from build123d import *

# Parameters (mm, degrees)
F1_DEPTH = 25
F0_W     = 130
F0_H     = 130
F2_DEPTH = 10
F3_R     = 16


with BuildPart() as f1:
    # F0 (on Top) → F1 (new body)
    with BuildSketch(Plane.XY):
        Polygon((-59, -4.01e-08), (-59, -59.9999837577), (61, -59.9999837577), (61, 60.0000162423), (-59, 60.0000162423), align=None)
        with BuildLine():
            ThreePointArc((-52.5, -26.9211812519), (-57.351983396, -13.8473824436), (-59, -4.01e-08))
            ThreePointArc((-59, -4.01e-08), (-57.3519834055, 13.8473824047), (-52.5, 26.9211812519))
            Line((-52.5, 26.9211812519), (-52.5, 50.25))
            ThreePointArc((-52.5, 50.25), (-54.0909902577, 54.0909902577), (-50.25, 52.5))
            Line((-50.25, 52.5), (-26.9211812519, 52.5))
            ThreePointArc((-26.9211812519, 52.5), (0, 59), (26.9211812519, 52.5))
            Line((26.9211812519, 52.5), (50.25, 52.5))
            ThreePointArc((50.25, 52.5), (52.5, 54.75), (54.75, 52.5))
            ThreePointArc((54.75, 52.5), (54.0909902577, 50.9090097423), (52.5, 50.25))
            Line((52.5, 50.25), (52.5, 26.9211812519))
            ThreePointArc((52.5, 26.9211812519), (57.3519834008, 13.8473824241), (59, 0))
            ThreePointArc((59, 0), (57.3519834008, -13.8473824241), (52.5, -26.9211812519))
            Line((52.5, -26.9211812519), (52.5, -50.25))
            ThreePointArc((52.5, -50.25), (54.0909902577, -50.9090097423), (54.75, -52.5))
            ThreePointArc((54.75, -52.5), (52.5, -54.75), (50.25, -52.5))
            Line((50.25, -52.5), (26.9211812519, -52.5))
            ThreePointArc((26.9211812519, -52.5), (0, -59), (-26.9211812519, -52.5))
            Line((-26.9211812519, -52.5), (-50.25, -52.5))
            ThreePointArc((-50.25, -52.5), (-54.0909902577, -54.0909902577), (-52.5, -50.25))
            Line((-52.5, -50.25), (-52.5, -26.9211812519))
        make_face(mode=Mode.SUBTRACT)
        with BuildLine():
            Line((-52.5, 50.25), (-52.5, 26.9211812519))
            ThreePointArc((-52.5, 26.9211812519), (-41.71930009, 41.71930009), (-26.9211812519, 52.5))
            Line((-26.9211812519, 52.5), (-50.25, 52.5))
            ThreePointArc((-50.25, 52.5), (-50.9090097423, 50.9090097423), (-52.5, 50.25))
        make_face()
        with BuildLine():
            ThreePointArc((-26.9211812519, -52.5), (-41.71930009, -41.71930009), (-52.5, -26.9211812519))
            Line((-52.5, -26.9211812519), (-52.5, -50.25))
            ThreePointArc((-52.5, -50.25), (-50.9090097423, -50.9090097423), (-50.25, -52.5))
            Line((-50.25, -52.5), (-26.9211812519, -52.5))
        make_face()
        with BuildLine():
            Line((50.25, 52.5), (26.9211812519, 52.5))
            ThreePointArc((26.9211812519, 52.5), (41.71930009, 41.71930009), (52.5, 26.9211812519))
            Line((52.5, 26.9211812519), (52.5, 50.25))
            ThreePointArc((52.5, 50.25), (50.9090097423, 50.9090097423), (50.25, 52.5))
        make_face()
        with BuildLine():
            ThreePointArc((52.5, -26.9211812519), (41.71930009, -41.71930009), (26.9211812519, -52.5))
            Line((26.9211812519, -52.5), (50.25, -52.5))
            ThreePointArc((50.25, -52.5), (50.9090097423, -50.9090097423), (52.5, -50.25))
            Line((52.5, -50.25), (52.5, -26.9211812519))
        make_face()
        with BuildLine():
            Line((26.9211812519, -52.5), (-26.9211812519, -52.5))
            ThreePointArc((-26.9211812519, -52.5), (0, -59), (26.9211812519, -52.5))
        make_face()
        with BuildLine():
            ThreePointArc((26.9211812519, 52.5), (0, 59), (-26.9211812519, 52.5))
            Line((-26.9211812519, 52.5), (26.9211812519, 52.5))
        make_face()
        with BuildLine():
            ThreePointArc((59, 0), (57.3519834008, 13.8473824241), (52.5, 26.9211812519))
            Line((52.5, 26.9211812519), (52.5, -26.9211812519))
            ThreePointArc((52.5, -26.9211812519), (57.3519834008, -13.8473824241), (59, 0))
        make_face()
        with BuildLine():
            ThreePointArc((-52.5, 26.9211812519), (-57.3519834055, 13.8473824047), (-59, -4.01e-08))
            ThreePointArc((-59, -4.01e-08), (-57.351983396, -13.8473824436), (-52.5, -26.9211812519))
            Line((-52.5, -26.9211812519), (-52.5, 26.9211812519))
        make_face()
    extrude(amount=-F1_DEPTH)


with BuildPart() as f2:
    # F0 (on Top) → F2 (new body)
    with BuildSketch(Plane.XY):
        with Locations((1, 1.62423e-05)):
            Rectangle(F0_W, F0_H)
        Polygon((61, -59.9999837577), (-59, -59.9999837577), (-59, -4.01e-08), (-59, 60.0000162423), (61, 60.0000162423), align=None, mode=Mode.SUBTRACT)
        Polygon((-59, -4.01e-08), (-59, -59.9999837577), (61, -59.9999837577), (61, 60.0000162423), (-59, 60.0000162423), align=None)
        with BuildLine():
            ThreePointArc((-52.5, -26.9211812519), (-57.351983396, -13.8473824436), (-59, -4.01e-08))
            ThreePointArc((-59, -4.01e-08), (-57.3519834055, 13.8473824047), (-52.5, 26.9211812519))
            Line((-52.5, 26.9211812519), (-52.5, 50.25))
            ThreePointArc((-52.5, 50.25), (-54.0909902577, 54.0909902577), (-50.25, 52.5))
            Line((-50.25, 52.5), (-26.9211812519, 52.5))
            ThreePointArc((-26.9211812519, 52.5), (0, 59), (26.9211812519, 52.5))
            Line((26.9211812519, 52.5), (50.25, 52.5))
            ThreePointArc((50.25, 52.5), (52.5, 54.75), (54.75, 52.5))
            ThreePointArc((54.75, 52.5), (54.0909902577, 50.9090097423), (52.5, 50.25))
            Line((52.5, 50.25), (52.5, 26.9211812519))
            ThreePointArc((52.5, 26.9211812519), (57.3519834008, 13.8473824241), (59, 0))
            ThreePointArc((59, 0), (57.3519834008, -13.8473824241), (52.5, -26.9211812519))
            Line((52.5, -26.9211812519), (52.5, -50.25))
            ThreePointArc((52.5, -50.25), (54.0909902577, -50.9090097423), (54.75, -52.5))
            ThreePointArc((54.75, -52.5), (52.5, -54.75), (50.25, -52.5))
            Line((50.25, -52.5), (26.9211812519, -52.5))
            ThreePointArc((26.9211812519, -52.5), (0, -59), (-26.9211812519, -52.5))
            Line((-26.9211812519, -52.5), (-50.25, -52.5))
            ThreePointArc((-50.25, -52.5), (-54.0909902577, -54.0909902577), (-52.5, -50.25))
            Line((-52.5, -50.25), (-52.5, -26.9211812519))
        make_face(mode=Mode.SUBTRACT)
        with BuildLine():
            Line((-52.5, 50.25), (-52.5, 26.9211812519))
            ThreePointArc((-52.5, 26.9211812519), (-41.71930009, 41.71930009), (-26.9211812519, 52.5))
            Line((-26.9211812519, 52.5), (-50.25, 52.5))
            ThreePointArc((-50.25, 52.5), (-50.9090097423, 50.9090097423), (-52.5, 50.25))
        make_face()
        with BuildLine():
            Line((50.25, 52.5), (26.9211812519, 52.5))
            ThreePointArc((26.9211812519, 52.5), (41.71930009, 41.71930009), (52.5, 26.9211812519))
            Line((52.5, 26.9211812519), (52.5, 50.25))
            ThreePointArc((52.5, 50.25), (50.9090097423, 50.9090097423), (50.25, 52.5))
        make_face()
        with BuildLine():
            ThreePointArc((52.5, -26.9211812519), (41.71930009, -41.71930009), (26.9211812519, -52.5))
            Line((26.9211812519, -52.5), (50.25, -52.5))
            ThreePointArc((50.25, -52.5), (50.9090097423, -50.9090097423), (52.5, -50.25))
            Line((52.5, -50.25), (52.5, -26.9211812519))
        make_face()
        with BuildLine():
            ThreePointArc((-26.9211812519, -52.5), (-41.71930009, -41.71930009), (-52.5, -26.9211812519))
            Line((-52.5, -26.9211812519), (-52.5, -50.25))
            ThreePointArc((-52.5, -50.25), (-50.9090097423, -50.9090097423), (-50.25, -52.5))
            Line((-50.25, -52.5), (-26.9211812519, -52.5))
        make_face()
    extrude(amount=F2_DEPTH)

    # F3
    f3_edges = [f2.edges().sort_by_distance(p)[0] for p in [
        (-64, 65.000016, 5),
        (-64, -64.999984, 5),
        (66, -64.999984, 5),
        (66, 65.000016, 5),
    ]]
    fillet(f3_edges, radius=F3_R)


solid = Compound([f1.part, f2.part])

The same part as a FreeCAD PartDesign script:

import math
import FreeCAD as App
import Part
import Sketcher

V = App.Vector


def edges_at(feature, points):
    """Names of the edges that pass closest to the given points."""
    edges = feature.Shape.Edges
    near = lambda p: min(range(len(edges)), key=lambda i: edges[i].distToShape(Part.Vertex(*p))[0])
    return sorted({f"Edge{near(p) + 1}" for p in points})


def add_polygon(sketch, points):
    """Adds a closed chain of lines whose ends are joined by coincident constraints."""
    first, n = sketch.GeometryCount, len(points)
    for a, b in zip(points, points[1:] + points[:1]):
        sketch.addGeometry(Part.LineSegment(App.Vector(*a, 0), App.Vector(*b, 0)), False)
    for i in range(n):
        sketch.addConstraint(Sketcher.Constraint("Coincident", first + i, 2, first + (i + 1) % n, 1))

doc = App.newDocument("Part")
body = doc.addObject("PartDesign::Body", "Body")

sketch1 = body.newObject("Sketcher::SketchObject", "Sketch")
sketch1.AttachmentSupport = (doc.getObject("XY_Plane"), [""])
sketch1.MapMode = "FlatFace"
add_polygon(sketch1, [(-59, 60), (-59, -60), (61, -60), (61, 60)])
sketch1.addGeometry(Part.ArcOfCircle(Part.Circle(V(-52.5, -52.5, 0), V(0, 0, 1), 2.2), math.radians(90), math.radians(360)), False)
sketch1.addGeometry(Part.ArcOfCircle(Part.Circle(V(-52.5, -52.5, 0), V(0, 0, 1), 2.2), math.radians(0), math.radians(90)), False)
sketch1.addGeometry(Part.ArcOfCircle(Part.Circle(V(52.5, -52.5, 0), V(0, 0, 1), 2.2), math.radians(180), math.radians(360)), False)
sketch1.addGeometry(Part.ArcOfCircle(Part.Circle(V(52.5, -52.5, 0), V(0, 0, 1), 2.2), math.radians(90), math.radians(180)), False)
sketch1.addGeometry(Part.ArcOfCircle(Part.Circle(V(52.5, -52.5, 0), V(0, 0, 1), 2.2), math.radians(0), math.radians(90)), False)
sketch1.addGeometry(Part.ArcOfCircle(Part.Circle(V(0, 0, 0), V(0, 0, 1), 59), math.radians(-153), math.radians(-117)), False)
sketch1.addGeometry(Part.LineSegment(V(-52.5, -26.9, 0), V(-52.5, 26.9, 0)), False)
sketch1.addGeometry(Part.ArcOfCircle(Part.Circle(V(0, 0, 0), V(0, 0, 1), 59), math.radians(117), math.radians(153)), False)
sketch1.addGeometry(Part.LineSegment(V(-26.9, 52.5, 0), V(26.9, 52.5, 0)), False)
sketch1.addGeometry(Part.ArcOfCircle(Part.Circle(V(0, 0, 0), V(0, 0, 1), 59), math.radians(27), math.radians(63)), False)
sketch1.addGeometry(Part.LineSegment(V(52.5, 26.9, 0), V(52.5, -26.9, 0)), False)
sketch1.addGeometry(Part.ArcOfCircle(Part.Circle(V(0, 0, 0), V(0, 0, 1), 59), math.radians(-63), math.radians(-27)), False)
sketch1.addGeometry(Part.LineSegment(V(26.9, -52.5, 0), V(-26.9, -52.5, 0)), False)
sketch1.addGeometry(Part.ArcOfCircle(Part.Circle(V(-52.5, 52.5, 0), V(0, 0, 1), 2.2), math.radians(0), math.radians(270)), False)
sketch1.addGeometry(Part.ArcOfCircle(Part.Circle(V(-52.5, 52.5, 0), V(0, 0, 1), 2.2), math.radians(-90), math.radians(0)), False)
sketch1.addGeometry(Part.ArcOfCircle(Part.Circle(V(52.5, 52.5, 0), V(0, 0, 1), 2.2), math.radians(-90), math.radians(0)), False)
sketch1.addGeometry(Part.ArcOfCircle(Part.Circle(V(52.5, 52.5, 0), V(0, 0, 1), 2.2), math.radians(180), math.radians(270)), False)
sketch1.addGeometry(Part.ArcOfCircle(Part.Circle(V(52.5, 52.5, 0), V(0, 0, 1), 2.2), math.radians(0), math.radians(180)), False)
sketch1.addConstraint([
    Sketcher.Constraint("Tangent", 4, 1, 5, 2),
    Sketcher.Constraint("Coincident", 5, 1, 4, 2),
    Sketcher.Constraint("Tangent", 6, 1, 7, 2),
    Sketcher.Constraint("Tangent", 7, 1, 8, 2),
    Sketcher.Constraint("Tangent", 8, 1, 6, 2),
    Sketcher.Constraint("Coincident", 9, 1, 10, 1),
    Sketcher.Constraint("Coincident", 10, 2, 11, 2),
    Sketcher.Constraint("Coincident", 11, 1, 12, 1),
    Sketcher.Constraint("Coincident", 12, 2, 13, 2),
    Sketcher.Constraint("Coincident", 13, 1, 14, 1),
    Sketcher.Constraint("Coincident", 14, 2, 15, 2),
    Sketcher.Constraint("Coincident", 15, 1, 16, 1),
    Sketcher.Constraint("Coincident", 16, 2, 9, 2),
    Sketcher.Constraint("Tangent", 17, 1, 18, 2),
    Sketcher.Constraint("Coincident", 18, 1, 17, 2),
    Sketcher.Constraint("Tangent", 19, 1, 20, 2),
    Sketcher.Constraint("Tangent", 20, 1, 21, 2),
    Sketcher.Constraint("Tangent", 21, 1, 19, 2),
    Sketcher.Constraint("Vertical", 0),
    Sketcher.Constraint("Horizontal", 1),
    Sketcher.Constraint("Vertical", 2),
    Sketcher.Constraint("Horizontal", 3),
    Sketcher.Constraint("Vertical", 10),
    Sketcher.Constraint("Horizontal", 12),
    Sketcher.Constraint("Vertical", 14),
    Sketcher.Constraint("Horizontal", 16),
    Sketcher.Constraint("Coincident", 9, 3, -1, 1),
    Sketcher.Constraint("Coincident", 11, 3, -1, 1),
    Sketcher.Constraint("Coincident", 13, 3, -1, 1),
    Sketcher.Constraint("Coincident", 15, 3, -1, 1),
    Sketcher.Constraint("Equal", 5, 6),
    Sketcher.Constraint("Equal", 9, 11),
    Sketcher.Constraint("Equal", 11, 13),
    Sketcher.Constraint("Equal", 13, 15),
    Sketcher.Constraint("Equal", 8, 17),
    Sketcher.Constraint("Equal", 18, 19),
    Sketcher.Constraint("Symmetric", 6, 3, 17, 3, -1, 1),
    Sketcher.Constraint("Symmetric", 4, 3, 19, 3, -1, 1),
    Sketcher.Constraint("Symmetric", 4, 3, 6, 3, -2),
    Sketcher.Constraint("Horizontal", 8, 3, 5, 1),
    Sketcher.Constraint("Horizontal", 5, 1, 6, 1),
    Sketcher.Constraint("Horizontal", 6, 1, 8, 1),
    Sketcher.Constraint("Horizontal", 21, 3, 11, 1),
    Sketcher.Constraint("Horizontal", 10, 2, 13, 1),
    Sketcher.Constraint("Horizontal", 8, 1, 15, 1),
    Sketcher.Constraint("Horizontal", 12, 2, 17, 1),
    Sketcher.Constraint("Horizontal", 17, 1, 20, 1),
    Sketcher.Constraint("Horizontal", 20, 1, 21, 1),
    Sketcher.Constraint("Vertical", 18, 3, 4, 1),
    Sketcher.Constraint("Vertical", 21, 3, 7, 1),
    Sketcher.Constraint("Vertical", 4, 1, 9, 1),
    Sketcher.Constraint("Vertical", 10, 2, 18, 1),
    Sketcher.Constraint("Vertical", 14, 2, 19, 1),
    Sketcher.Constraint("Equal", 3, 0),
    Sketcher.Constraint("Equal", 16, 10),
    Sketcher.Constraint("Radius", 9, 59.0),
    Sketcher.Constraint("DistanceX", 1, 1, 1, 2, 120.0),
    Sketcher.Constraint("Radius", 4, 2.25),
    Sketcher.Constraint("DistanceX", 0, 2, -1, 1, 59.0),
    Sketcher.Constraint("DistanceX", 4, 3, 6, 3, 105.0),
    Sketcher.Constraint("DistanceY", 0, 2, -1, 1, 59.999984),
])
pad1 = body.newObject("PartDesign::Pad", "Pad")
pad1.Profile = sketch1
pad1.Length = 25
pad1.Reversed = True
body2 = doc.addObject("PartDesign::Body", "Body001")

sketch2 = body2.newObject("Sketcher::SketchObject", "Sketch001")
sketch2.AttachmentSupport = (doc.getObject("XY_Plane001"), [""])
sketch2.MapMode = "FlatFace"
add_polygon(sketch2, [(-64, 65), (-64, -65), (66, -65), (66, 65)])
sketch2.addGeometry(Part.ArcOfCircle(Part.Circle(V(0, 0, 0), V(0, 0, 1), 59), math.radians(-180), math.radians(-153)), False)
sketch2.addGeometry(Part.ArcOfCircle(Part.Circle(V(0, 0, 0), V(0, 0, 1), 59), math.radians(153), math.radians(180)), False)
sketch2.addGeometry(Part.ArcOfCircle(Part.Circle(V(0, 0, 0), V(0, 0, 1), 59), math.radians(117), math.radians(153)), False)
sketch2.addGeometry(Part.ArcOfCircle(Part.Circle(V(0, 0, 0), V(0, 0, 1), 59), math.radians(63), math.radians(117)), False)
sketch2.addGeometry(Part.ArcOfCircle(Part.Circle(V(0, 0, 0), V(0, 0, 1), 59), math.radians(27), math.radians(63)), False)
sketch2.addGeometry(Part.ArcOfCircle(Part.Circle(V(0, 0, 0), V(0, 0, 1), 59), math.radians(0), math.radians(27)), False)
sketch2.addGeometry(Part.ArcOfCircle(Part.Circle(V(0, 0, 0), V(0, 0, 1), 59), math.radians(-27), math.radians(0)), False)
sketch2.addGeometry(Part.ArcOfCircle(Part.Circle(V(0, 0, 0), V(0, 0, 1), 59), math.radians(-63), math.radians(-27)), False)
sketch2.addGeometry(Part.ArcOfCircle(Part.Circle(V(0, 0, 0), V(0, 0, 1), 59), math.radians(-117), math.radians(-63)), False)
sketch2.addGeometry(Part.ArcOfCircle(Part.Circle(V(0, 0, 0), V(0, 0, 1), 59), math.radians(-153), math.radians(-117)), False)
sketch2.addGeometry(Part.ArcOfCircle(Part.Circle(V(-52.5, -52.5, 0), V(0, 0, 1), 2.2), math.radians(90), math.radians(360)), False)
sketch2.addGeometry(Part.ArcOfCircle(Part.Circle(V(-52.5, -52.5, 0), V(0, 0, 1), 2.2), math.radians(0), math.radians(90)), False)
sketch2.addGeometry(Part.ArcOfCircle(Part.Circle(V(52.5, -52.5, 0), V(0, 0, 1), 2.2), math.radians(0), math.radians(90)), False)
sketch2.addGeometry(Part.ArcOfCircle(Part.Circle(V(52.5, -52.5, 0), V(0, 0, 1), 2.2), math.radians(180), math.radians(360)), False)
sketch2.addGeometry(Part.ArcOfCircle(Part.Circle(V(52.5, -52.5, 0), V(0, 0, 1), 2.2), math.radians(90), math.radians(180)), False)
sketch2.addGeometry(Part.ArcOfCircle(Part.Circle(V(52.5, 52.5, 0), V(0, 0, 1), 2.2), math.radians(0), math.radians(180)), False)
sketch2.addGeometry(Part.ArcOfCircle(Part.Circle(V(52.5, 52.5, 0), V(0, 0, 1), 2.2), math.radians(-90), math.radians(0)), False)
sketch2.addGeometry(Part.ArcOfCircle(Part.Circle(V(52.5, 52.5, 0), V(0, 0, 1), 2.2), math.radians(180), math.radians(270)), False)
sketch2.addGeometry(Part.ArcOfCircle(Part.Circle(V(-52.5, 52.5, 0), V(0, 0, 1), 2.2), math.radians(0), math.radians(270)), False)
sketch2.addGeometry(Part.ArcOfCircle(Part.Circle(V(-52.5, 52.5, 0), V(0, 0, 1), 2.2), math.radians(-90), math.radians(0)), False)
sketch2.addConstraint([
    Sketcher.Constraint("Tangent", 4, 1, 5, 2),
    Sketcher.Constraint("Tangent", 5, 1, 6, 2),
    Sketcher.Constraint("Tangent", 6, 1, 7, 2),
    Sketcher.Constraint("Tangent", 7, 1, 8, 2),
    Sketcher.Constraint("Tangent", 8, 1, 9, 2),
    Sketcher.Constraint("Tangent", 9, 1, 10, 2),
    Sketcher.Constraint("Tangent", 10, 1, 11, 2),
    Sketcher.Constraint("Tangent", 11, 1, 12, 2),
    Sketcher.Constraint("Tangent", 12, 1, 13, 2),
    Sketcher.Constraint("Tangent", 13, 1, 4, 2),
    Sketcher.Constraint("Tangent", 14, 1, 15, 2),
    Sketcher.Constraint("Coincident", 15, 1, 14, 2),
    Sketcher.Constraint("Tangent", 16, 1, 17, 2),
    Sketcher.Constraint("Tangent", 17, 1, 18, 2),
    Sketcher.Constraint("Tangent", 18, 1, 16, 2),
    Sketcher.Constraint("Tangent", 19, 1, 20, 2),
    Sketcher.Constraint("Tangent", 20, 1, 21, 2),
    Sketcher.Constraint("Tangent", 21, 1, 19, 2),
    Sketcher.Constraint("Tangent", 22, 1, 23, 2),
    Sketcher.Constraint("Coincident", 23, 1, 22, 2),
    Sketcher.Constraint("Vertical", 0),
    Sketcher.Constraint("Horizontal", 1),
    Sketcher.Constraint("Vertical", 2),
    Sketcher.Constraint("Horizontal", 3),
    Sketcher.Constraint("Coincident", 4, 3, -1, 1),
    Sketcher.Constraint("Coincident", 6, 3, -1, 1),
    Sketcher.Constraint("Coincident", 8, 3, -1, 1),
    Sketcher.Constraint("Coincident", 10, 3, -1, 1),
    Sketcher.Constraint("Equal", 10, 11),
    Sketcher.Constraint("Equal", 15, 16),
    Sketcher.Constraint("Equal", 18, 19),
    Sketcher.Constraint("Equal", 21, 22),
    Sketcher.Constraint("Symmetric", 14, 3, 19, 3, -1, 1),
    Sketcher.Constraint("Symmetric", 16, 3, 22, 3, -1, 1),
    Sketcher.Constraint("Symmetric", 14, 3, 16, 3, -2),
    Sketcher.Constraint("PointOnObject", 4, 1, -1),
    Sketcher.Constraint("PointOnObject", 9, 1, -1),
    Sketcher.Constraint("Horizontal", 23, 3, 6, 1),
    Sketcher.Constraint("Horizontal", 6, 1, 7, 1),
    Sketcher.Constraint("Horizontal", 5, 1, 8, 1),
    Sketcher.Constraint("Horizontal", 18, 3, 11, 1),
    Sketcher.Constraint("Horizontal", 11, 1, 12, 1),
    Sketcher.Constraint("Horizontal", 10, 1, 13, 1),
    Sketcher.Constraint("Horizontal", 12, 1, 15, 1),
    Sketcher.Constraint("Horizontal", 15, 1, 16, 1),
    Sketcher.Constraint("Horizontal", 16, 1, 17, 1),
    Sketcher.Constraint("Horizontal", 7, 1, 19, 1),
    Sketcher.Constraint("Horizontal", 19, 1, 21, 1),
    Sketcher.Constraint("Horizontal", 21, 1, 22, 1),
    Sketcher.Constraint("Vertical", 23, 3, 5, 1),
    Sketcher.Constraint("Vertical", 8, 1, 10, 1),
    Sketcher.Constraint("Vertical", 13, 1, 14, 1),
    Sketcher.Constraint("Vertical", 10, 1, 18, 1),
    Sketcher.Constraint("Vertical", 18, 1, 20, 1),
    Sketcher.Constraint("Vertical", 14, 1, 23, 1),
    Sketcher.Constraint("Equal", 3, 0),
    Sketcher.Constraint("Radius", 4, 59.0),
    Sketcher.Constraint("DistanceX", 1, 1, 1, 2, 130.0),
    Sketcher.Constraint("Radius", 14, 2.25),
    Sketcher.Constraint("DistanceX", 0, 2, -1, 1, 64.0),
    Sketcher.Constraint("DistanceX", 14, 3, -1, 1, 52.5),
    Sketcher.Constraint("DistanceY", 14, 3, -1, 1, 52.5),
    Sketcher.Constraint("DistanceY", 0, 2, -1, 1, 64.999984),
])
pad2 = body2.newObject("PartDesign::Pad", "Pad001")
pad2.Profile = sketch2
pad2.Length = 10
doc.recompute()

fillet = body2.newObject("PartDesign::Fillet", "Fillet")
fillet.Base = (pad2, edges_at(pad2, [
    (-64, 65, 5),
    (-64, -65, 5),
    (66, -65, 5),
    (66, 65, 5),
]))
fillet.Radius = 16

doc.recompute()
